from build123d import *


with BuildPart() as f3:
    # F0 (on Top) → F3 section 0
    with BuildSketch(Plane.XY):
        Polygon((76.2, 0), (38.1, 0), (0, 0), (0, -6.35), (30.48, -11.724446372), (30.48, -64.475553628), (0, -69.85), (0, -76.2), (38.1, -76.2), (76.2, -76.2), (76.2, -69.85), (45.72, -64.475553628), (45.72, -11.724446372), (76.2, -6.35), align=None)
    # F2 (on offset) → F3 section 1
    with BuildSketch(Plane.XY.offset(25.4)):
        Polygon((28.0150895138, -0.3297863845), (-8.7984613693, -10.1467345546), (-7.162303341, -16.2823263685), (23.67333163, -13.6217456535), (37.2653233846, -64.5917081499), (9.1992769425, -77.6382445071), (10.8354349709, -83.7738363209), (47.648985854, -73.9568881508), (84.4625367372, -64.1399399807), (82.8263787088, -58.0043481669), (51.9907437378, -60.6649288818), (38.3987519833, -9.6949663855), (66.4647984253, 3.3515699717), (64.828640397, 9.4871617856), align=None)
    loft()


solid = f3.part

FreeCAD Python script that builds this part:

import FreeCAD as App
import Part
import Sketcher
from FreeCAD import Vector
Q = App.Units.Quantity


def add_polygon(sketch, points):
    """Adds a closed chain of lines whose ends are joined by coincident constraints."""
    first, n = sketch.GeometryCount, len(points)
    for a, b in zip(points, points[1:] + points[:1]):
        sketch.addGeometry(Part.LineSegment(App.Vector(*a, 0), App.Vector(*b, 0)), False)
    for i in range(n):
        sketch.addConstraint(Sketcher.Constraint("Coincident", first + i, 2, first + (i + 1) % n, 1))

doc = App.newDocument("Part")
params = doc.addObject("Spreadsheet::Sheet", "Params")
for row, (alias, value) in enumerate([
    ("sketch1_width", "3 in"),
    ("sketch1_height", "0.25 in"),
    ("sketch2_length", "3 in"),
    ("sketch2_length2", "0.25 in"),
], start=1):
    params.set(f"A{row}", alias)
    params.set(f"B{row}", "=" + value)
    params.setAlias(f"B{row}", alias)

body = doc.addObject("PartDesign::Body", "Body")

sketch1 = body.newObject("Sketcher::SketchObject", "Sketch")
sketch1.AttachmentSupport = (doc.getObject("XY_Plane"), [""])
sketch1.MapMode = "FlatFace"
add_polygon(sketch1, [(76.2, 0), (0, 0), (0, -6.35), (30.48, -11.724446), (30.48, -64.475554), (0, -69.85), (0, -76.2), (76.2, -76.2), (76.2, -69.85), (45.72, -64.475554), (45.72, -11.724446), (76.2, -6.35)])
sketch1.addConstraint(Sketcher.Constraint("Horizontal", 0))
sketch1.addConstraint(Sketcher.Constraint("Vertical", 1))
sketch1.addConstraint(Sketcher.Constraint("Vertical", 3))
sketch1.addConstraint(Sketcher.Constraint("Vertical", 5))
sketch1.addConstraint(Sketcher.Constraint("Horizontal", 6))
sketch1.addConstraint(Sketcher.Constraint("Vertical", 7))
sketch1.addConstraint(Sketcher.Constraint("Vertical", 9))
sketch1.addConstraint(Sketcher.Constraint("Vertical", 11))
sketch1.addConstraint(Sketcher.Constraint("Coincident", 0, 2, -1, 1))
sketch1.addConstraint(Sketcher.Constraint("PointOnObject", 4, 2, -2))
sketch1.addConstraint(Sketcher.Constraint("Parallel", 2, 8))
sketch1.addConstraint(Sketcher.Constraint("Parallel", 4, 10))
sketch1.addConstraint(Sketcher.Constraint("Horizontal", 4, 2, 7, 2))
sketch1.addConstraint(Sketcher.Constraint("Horizontal", 3, 2, 8, 2))
sketch1.addConstraint(Sketcher.Constraint("Horizontal", 2, 2, 9, 2))
sketch1.addConstraint(Sketcher.Constraint("Horizontal", 1, 2, 10, 2))
sketch1.addConstraint(Sketcher.Constraint("Vertical", 7, 2, 10, 2))
sketch1.addConstraint(Sketcher.Constraint("Equal", 1, 5))
sketch1.addConstraint(Sketcher.Constraint("DistanceX", 0, 2, 0, 1, Q("3 in")))
sketch1.addConstraint(Sketcher.Constraint("DistanceY", 5, 2, -1, 1, Q("3 in")))
sketch1.addConstraint(Sketcher.Constraint("Angle", 2, Q("-10 deg")))
sketch1.addConstraint(Sketcher.Constraint("DistanceY", 1, 2, 1, 1, Q("0.25 in")))
sketch1.addConstraint(Sketcher.Constraint("DistanceX", -1, 1, 2, 2, Q("1.2 in")))
sketch1.setExpression("Constraints[30]", "Params.sketch1_width")
sketch1.setExpression("Constraints[33]", "Params.sketch1_height")

sketch2 = body.newObject("Sketcher::SketchObject", "Sketch001")
sketch2.AttachmentSupport = (doc.getObject("XY_Plane"), [""])
sketch2.MapMode = "FlatFace"
sketch2.AttachmentOffset = App.Placement(Vector(0, 0, 1 * 25.4), App.Rotation())
add_polygon(sketch2, [(-8.798461, -10.146735), (-7.162303, -16.282326), (23.673332, -13.621746), (37.265323, -64.591708), (9.199277, -77.638245), (10.835435, -83.773836), (84.462537, -64.13994), (82.826379, -58.004348), (51.990744, -60.664929), (38.398752, -9.694966), (66.464798, 3.35157), (64.82864, 9.487162)])
sketch2.addConstraint(Sketcher.Constraint("Parallel", 0, 2))
sketch2.addConstraint(Sketcher.Constraint("Parallel", 2, 4))
sketch2.addConstraint(Sketcher.Constraint("Perpendicular", 4, 5))
sketch2.addConstraint(Sketcher.Constraint("Perpendicular", 5, 6))
sketch2.addConstraint(Sketcher.Constraint("Parallel", 1, 7))
sketch2.addConstraint(Sketcher.Constraint("Parallel", 6, 8))
sketch2.addConstraint(Sketcher.Constraint("Parallel", 3, 9))
sketch2.addConstraint(Sketcher.Constraint("Parallel", 8, 10))
sketch2.addConstraint(Sketcher.Constraint("Perpendicular", 10, 11))
sketch2.addConstraint(Sketcher.Constraint("Equal", 1, 3))
sketch2.addConstraint(Sketcher.Constraint("Equal", 0, 4))
sketch2.addConstraint(Sketcher.Constraint("Equal", 4, 6))
sketch2.addConstraint(Sketcher.Constraint("Equal", 3, 7))
sketch2.addConstraint(Sketcher.Constraint("Equal", 2, 8))
sketch2.addConstraint(Sketcher.Constraint("Equal", 7, 9))
sketch2.addConstraint(Sketcher.Constraint("Distance", 5, Q("3 in")))
sketch2.addConstraint(Sketcher.Constraint("Distance", 0, Q("0.25 in")))
sketch2.addConstraint(Sketcher.Constraint("DistanceX", -1, 1, 9, 2, 66.464798))
sketch2.addConstraint(Sketcher.Constraint("DistanceY", 3, 2, 1, 2, 64.016499))
sketch2.addConstraint(Sketcher.Constraint("DistanceX", 4, 2, 5, 2, 73.627102))
sketch2.addConstraint(Sketcher.Constraint("DistanceX", -1, 1, 1, 2, 23.673332))
sketch2.addConstraint(Sketcher.Constraint("DistanceY", 2, 2, -1, 1, 64.591708))
sketch2.addConstraint(Sketcher.Constraint("DistanceY", 5, 2, -1, 1, 64.13994))
sketch2.addConstraint(Sketcher.Constraint("DistanceX", -1, 1, 6, 2, 82.826379))
sketch2.setExpression("Constraints[27]", "Params.sketch2_length")
sketch2.setExpression("Constraints[28]", "Params.sketch2_length2")

additiveloft = body.newObject("PartDesign::AdditiveLoft", "AdditiveLoft")
additiveloft.Profile = sketch1
additiveloft.Sections = [sketch2]

doc.recompute()
